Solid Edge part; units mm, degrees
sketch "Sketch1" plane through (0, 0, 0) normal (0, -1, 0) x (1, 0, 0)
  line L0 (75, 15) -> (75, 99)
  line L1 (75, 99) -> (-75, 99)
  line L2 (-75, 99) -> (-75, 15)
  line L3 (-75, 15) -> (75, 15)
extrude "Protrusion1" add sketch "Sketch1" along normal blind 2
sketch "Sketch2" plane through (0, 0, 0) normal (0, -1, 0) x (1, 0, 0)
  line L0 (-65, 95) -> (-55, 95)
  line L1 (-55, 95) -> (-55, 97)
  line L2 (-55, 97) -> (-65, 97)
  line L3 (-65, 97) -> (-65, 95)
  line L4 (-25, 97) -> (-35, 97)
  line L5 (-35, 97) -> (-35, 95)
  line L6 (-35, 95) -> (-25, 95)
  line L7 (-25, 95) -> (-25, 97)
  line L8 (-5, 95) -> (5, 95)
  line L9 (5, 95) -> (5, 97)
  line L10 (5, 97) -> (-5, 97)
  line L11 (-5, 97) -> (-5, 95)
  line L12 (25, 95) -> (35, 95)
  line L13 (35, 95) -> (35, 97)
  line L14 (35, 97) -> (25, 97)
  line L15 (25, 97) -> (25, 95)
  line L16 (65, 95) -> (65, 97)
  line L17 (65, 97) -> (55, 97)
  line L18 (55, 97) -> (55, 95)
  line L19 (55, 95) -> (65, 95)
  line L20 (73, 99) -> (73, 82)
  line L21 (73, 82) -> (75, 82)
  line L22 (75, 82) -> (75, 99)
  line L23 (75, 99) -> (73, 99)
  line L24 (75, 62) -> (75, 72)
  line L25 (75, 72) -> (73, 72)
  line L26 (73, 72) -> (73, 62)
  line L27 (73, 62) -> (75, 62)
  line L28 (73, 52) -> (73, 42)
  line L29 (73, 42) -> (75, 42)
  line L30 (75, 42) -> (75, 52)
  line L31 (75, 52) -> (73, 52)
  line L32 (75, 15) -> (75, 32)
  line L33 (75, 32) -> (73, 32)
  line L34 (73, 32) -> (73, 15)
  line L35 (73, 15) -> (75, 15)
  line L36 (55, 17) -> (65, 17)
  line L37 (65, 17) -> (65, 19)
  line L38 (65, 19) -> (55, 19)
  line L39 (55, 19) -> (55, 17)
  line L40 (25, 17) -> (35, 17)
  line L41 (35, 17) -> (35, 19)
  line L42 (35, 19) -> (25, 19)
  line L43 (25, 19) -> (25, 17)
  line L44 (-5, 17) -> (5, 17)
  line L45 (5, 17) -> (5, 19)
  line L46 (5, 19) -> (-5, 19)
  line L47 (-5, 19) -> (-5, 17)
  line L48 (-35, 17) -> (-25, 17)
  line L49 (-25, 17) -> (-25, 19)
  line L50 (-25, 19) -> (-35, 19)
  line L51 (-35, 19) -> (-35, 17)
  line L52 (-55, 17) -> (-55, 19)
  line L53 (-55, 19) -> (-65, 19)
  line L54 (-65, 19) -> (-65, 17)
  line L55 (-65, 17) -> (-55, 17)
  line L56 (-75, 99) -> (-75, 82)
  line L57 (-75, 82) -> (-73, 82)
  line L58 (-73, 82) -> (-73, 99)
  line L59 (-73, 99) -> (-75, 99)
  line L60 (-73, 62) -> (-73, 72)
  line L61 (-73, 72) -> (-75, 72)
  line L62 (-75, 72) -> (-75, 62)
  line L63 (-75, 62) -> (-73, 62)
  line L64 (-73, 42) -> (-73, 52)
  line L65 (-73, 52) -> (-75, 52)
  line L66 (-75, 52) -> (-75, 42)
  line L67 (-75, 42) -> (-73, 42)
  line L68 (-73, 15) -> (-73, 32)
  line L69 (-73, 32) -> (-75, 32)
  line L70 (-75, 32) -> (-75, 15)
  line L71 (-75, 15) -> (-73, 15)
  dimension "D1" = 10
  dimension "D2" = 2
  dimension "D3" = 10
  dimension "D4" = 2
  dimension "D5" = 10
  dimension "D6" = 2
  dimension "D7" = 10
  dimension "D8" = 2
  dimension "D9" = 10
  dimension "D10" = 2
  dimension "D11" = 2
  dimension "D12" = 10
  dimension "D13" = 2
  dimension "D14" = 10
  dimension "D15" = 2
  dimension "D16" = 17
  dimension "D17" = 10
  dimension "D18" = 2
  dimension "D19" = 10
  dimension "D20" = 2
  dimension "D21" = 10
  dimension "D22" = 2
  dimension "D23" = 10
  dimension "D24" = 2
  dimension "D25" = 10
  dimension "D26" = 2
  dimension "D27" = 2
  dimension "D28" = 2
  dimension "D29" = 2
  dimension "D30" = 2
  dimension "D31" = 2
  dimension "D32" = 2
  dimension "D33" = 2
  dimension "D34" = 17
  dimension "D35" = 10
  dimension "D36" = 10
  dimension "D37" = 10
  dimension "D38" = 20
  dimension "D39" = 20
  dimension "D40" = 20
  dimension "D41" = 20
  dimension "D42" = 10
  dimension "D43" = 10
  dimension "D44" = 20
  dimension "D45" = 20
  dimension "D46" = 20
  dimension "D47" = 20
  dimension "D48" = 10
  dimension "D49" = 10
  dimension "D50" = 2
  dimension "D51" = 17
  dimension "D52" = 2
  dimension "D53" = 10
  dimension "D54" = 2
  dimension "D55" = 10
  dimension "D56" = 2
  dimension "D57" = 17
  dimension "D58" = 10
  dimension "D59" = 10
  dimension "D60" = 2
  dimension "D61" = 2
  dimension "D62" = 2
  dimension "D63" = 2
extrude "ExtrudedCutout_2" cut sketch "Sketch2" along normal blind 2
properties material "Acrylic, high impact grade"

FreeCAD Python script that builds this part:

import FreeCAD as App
import Part
import Sketcher
from FreeCAD import Vector
Q = App.Units.Quantity

doc = App.newDocument("Part")
body = doc.addObject("PartDesign::Body", "Body")

sketch1 = body.newObject("Sketcher::SketchObject", "Sketch")
sketch1.AttachmentSupport = (doc.getObject("XZ_Plane"), [""])
sketch1.MapMode = "FlatFace"
sketch1.addGeometry([
    Part.LineSegment(Vector(-75, 15, 0), Vector(75, 15, 0)),
    Part.LineSegment(Vector(75, 15, 0), Vector(75, 99, 0)),
    Part.LineSegment(Vector(75, 99, 0), Vector(-75, 99, 0)),
    Part.LineSegment(Vector(-75, 99, 0), Vector(-75, 15, 0)),
], False)
sketch1.addConstraint([
    Sketcher.Constraint("Coincident", 0, 2, 1, 1),
    Sketcher.Constraint("Coincident", 1, 2, 2, 1),
    Sketcher.Constraint("Coincident", 2, 2, 3, 1),
    Sketcher.Constraint("Coincident", 3, 2, 0, 1),
    Sketcher.Constraint("Horizontal", 0),
    Sketcher.Constraint("Vertical", 1),
    Sketcher.Constraint("Horizontal", 2),
    Sketcher.Constraint("Vertical", 3),
    Sketcher.Constraint("DistanceX", 0, 1, 0, 2, Q("150 mm")),
    Sketcher.Constraint("DistanceY", 1, 1, 1, 2, Q("84 mm")),
    Sketcher.Constraint("DistanceX", -1, 1, 0, 2, Q("75 mm")),
    Sketcher.Constraint("DistanceY", -1, 1, 0, 2, Q("15 mm")),
])
pad1 = body.newObject("PartDesign::Pad", "Pad")
pad1.Profile = sketch1
pad1.Length = 2

sketch2 = body.newObject("Sketcher::SketchObject", "Sketch001")
sketch2.AttachmentSupport = (doc.getObject("XZ_Plane"), [""])
sketch2.MapMode = "FlatFace"
sketch2.addGeometry([
    Part.LineSegment(Vector(-65, 97, 0), Vector(-65, 95, 0)),
    Part.LineSegment(Vector(-65, 95, 0), Vector(-55, 95, 0)),
    Part.LineSegment(Vector(-55, 95, 0), Vector(-55, 97, 0)),
    Part.LineSegment(Vector(-55, 97, 0), Vector(-65, 97, 0)),
    Part.LineSegment(Vector(-25, 95, 0), Vector(-25, 97, 0)),
    Part.LineSegment(Vector(-25, 97, 0), Vector(-35, 97, 0)),
    Part.LineSegment(Vector(-35, 97, 0), Vector(-35, 95, 0)),
    Part.LineSegment(Vector(-35, 95, 0), Vector(-25, 95, 0)),
    Part.LineSegment(Vector(-5, 97, 0), Vector(-5, 95, 0)),
    Part.LineSegment(Vector(-5, 95, 0), Vector(5, 95, 0)),
    Part.LineSegment(Vector(5, 95, 0), Vector(5, 97, 0)),
    Part.LineSegment(Vector(5, 97, 0), Vector(-5, 97, 0)),
    Part.LineSegment(Vector(25, 97, 0), Vector(25, 95, 0)),
    Part.LineSegment(Vector(25, 95, 0), Vector(35, 95, 0)),
    Part.LineSegment(Vector(35, 95, 0), Vector(35, 97, 0)),
    Part.LineSegment(Vector(35, 97, 0), Vector(25, 97, 0)),
    Part.LineSegment(Vector(55, 95, 0), Vector(65, 95, 0)),
    Part.LineSegment(Vector(65, 95, 0), Vector(65, 97, 0)),
    Part.LineSegment(Vector(65, 97, 0), Vector(55, 97, 0)),
    Part.LineSegment(Vector(55, 97, 0), Vector(55, 95, 0)),
    Part.LineSegment(Vector(75, 99, 0), Vector(73, 99, 0)),
    Part.LineSegment(Vector(73, 99, 0), Vector(73, 82, 0)),
    Part.LineSegment(Vector(73, 82, 0), Vector(75, 82, 0)),
    Part.LineSegment(Vector(75, 82, 0), Vector(75, 99, 0)),
    Part.LineSegment(Vector(73, 62, 0), Vector(75, 62, 0)),
    Part.LineSegment(Vector(75, 62, 0), Vector(75, 72, 0)),
    Part.LineSegment(Vector(75, 72, 0), Vector(73, 72, 0)),
    Part.LineSegment(Vector(73, 72, 0), Vector(73, 62, 0)),
    Part.LineSegment(Vector(75, 52, 0), Vector(73, 52, 0)),
    Part.LineSegment(Vector(73, 52, 0), Vector(73, 42, 0)),
    Part.LineSegment(Vector(73, 42, 0), Vector(75, 42, 0)),
    Part.LineSegment(Vector(75, 42, 0), Vector(75, 52, 0)),
    Part.LineSegment(Vector(73, 15, 0), Vector(75, 15, 0)),
    Part.LineSegment(Vector(75, 15, 0), Vector(75, 32, 0)),
    Part.LineSegment(Vector(75, 32, 0), Vector(73, 32, 0)),
    Part.LineSegment(Vector(73, 32, 0), Vector(73, 15, 0)),
    Part.LineSegment(Vector(55, 19, 0), Vector(55, 17, 0)),
    Part.LineSegment(Vector(55, 17, 0), Vector(65, 17, 0)),
    Part.LineSegment(Vector(65, 17, 0), Vector(65, 19, 0)),
    Part.LineSegment(Vector(65, 19, 0), Vector(55, 19, 0)),
    Part.LineSegment(Vector(25, 19, 0), Vector(25, 17, 0)),
    Part.LineSegment(Vector(25, 17, 0), Vector(35, 17, 0)),
    Part.LineSegment(Vector(35, 17, 0), Vector(35, 19, 0)),
    Part.LineSegment(Vector(35, 19, 0), Vector(25, 19, 0)),
    Part.LineSegment(Vector(-5, 19, 0), Vector(-5, 17, 0)),
    Part.LineSegment(Vector(-5, 17, 0), Vector(5, 17, 0)),
    Part.LineSegment(Vector(5, 17, 0), Vector(5, 19, 0)),
    Part.LineSegment(Vector(5, 19, 0), Vector(-5, 19, 0)),
    Part.LineSegment(Vector(-35, 19, 0), Vector(-35, 17, 0)),
    Part.LineSegment(Vector(-35, 17, 0), Vector(-25, 17, 0)),
    Part.LineSegment(Vector(-25, 17, 0), Vector(-25, 19, 0)),
    Part.LineSegment(Vector(-25, 19, 0), Vector(-35, 19, 0)),
    Part.LineSegment(Vector(-65, 17, 0), Vector(-55, 17, 0)),
    Part.LineSegment(Vector(-55, 17, 0), Vector(-55, 19, 0)),
    Part.LineSegment(Vector(-55, 19, 0), Vector(-65, 19, 0)),
    Part.LineSegment(Vector(-65, 19, 0), Vector(-65, 17, 0)),
    Part.LineSegment(Vector(-73, 99, 0), Vector(-75, 99, 0)),
    Part.LineSegment(Vector(-75, 99, 0), Vector(-75, 82, 0)),
    Part.LineSegment(Vector(-75, 82, 0), Vector(-73, 82, 0)),
    Part.LineSegment(Vector(-73, 82, 0), Vector(-73, 99, 0)),
    Part.LineSegment(Vector(-75, 62, 0), Vector(-73, 62, 0)),
    Part.LineSegment(Vector(-73, 62, 0), Vector(-73, 72, 0)),
    Part.LineSegment(Vector(-73, 72, 0), Vector(-75, 72, 0)),
    Part.LineSegment(Vector(-75, 72, 0), Vector(-75, 62, 0)),
    Part.LineSegment(Vector(-75, 42, 0), Vector(-73, 42, 0)),
    Part.LineSegment(Vector(-73, 42, 0), Vector(-73, 52, 0)),
    Part.LineSegment(Vector(-73, 52, 0), Vector(-75, 52, 0)),
    Part.LineSegment(Vector(-75, 52, 0), Vector(-75, 42, 0)),
    Part.LineSegment(Vector(-75, 15, 0), Vector(-73, 15, 0)),
    Part.LineSegment(Vector(-73, 15, 0), Vector(-73, 32, 0)),
    Part.LineSegment(Vector(-73, 32, 0), Vector(-75, 32, 0)),
    Part.LineSegment(Vector(-75, 32, 0), Vector(-75, 15, 0)),
], False)
sketch2.addConstraint([
    Sketcher.Constraint("Coincident", 0, 2, 1, 1),
    Sketcher.Constraint("Coincident", 1, 2, 2, 1),
    Sketcher.Constraint("Coincident", 2, 2, 3, 1),
    Sketcher.Constraint("Coincident", 3, 2, 0, 1),
    Sketcher.Constraint("Coincident", 4, 2, 5, 1),
    Sketcher.Constraint("Coincident", 5, 2, 6, 1),
    Sketcher.Constraint("Coincident", 6, 2, 7, 1),
    Sketcher.Constraint("Coincident", 7, 2, 4, 1),
    Sketcher.Constraint("Coincident", 8, 2, 9, 1),
    Sketcher.Constraint("Coincident", 9, 2, 10, 1),
    Sketcher.Constraint("Coincident", 10, 2, 11, 1),
    Sketcher.Constraint("Coincident", 11, 2, 8, 1),
    Sketcher.Constraint("Coincident", 12, 2, 13, 1),
    Sketcher.Constraint("Coincident", 13, 2, 14, 1),
    Sketcher.Constraint("Coincident", 14, 2, 15, 1),
    Sketcher.Constraint("Coincident", 15, 2, 12, 1),
    Sketcher.Constraint("Coincident", 16, 2, 17, 1),
    Sketcher.Constraint("Coincident", 17, 2, 18, 1),
    Sketcher.Constraint("Coincident", 18, 2, 19, 1),
    Sketcher.Constraint("Coincident", 19, 2, 16, 1),
    Sketcher.Constraint("Coincident", 20, 2, 21, 1),
    Sketcher.Constraint("Coincident", 21, 2, 22, 1),
    Sketcher.Constraint("Coincident", 22, 2, 23, 1),
    Sketcher.Constraint("Coincident", 23, 2, 20, 1),
    Sketcher.Constraint("Coincident", 24, 2, 25, 1),
    Sketcher.Constraint("Coincident", 25, 2, 26, 1),
    Sketcher.Constraint("Coincident", 26, 2, 27, 1),
    Sketcher.Constraint("Coincident", 27, 2, 24, 1),
    Sketcher.Constraint("Coincident", 28, 2, 29, 1),
    Sketcher.Constraint("Coincident", 29, 2, 30, 1),
    Sketcher.Constraint("Coincident", 30, 2, 31, 1),
    Sketcher.Constraint("Coincident", 31, 2, 28, 1),
    Sketcher.Constraint("Coincident", 32, 2, 33, 1),
    Sketcher.Constraint("Coincident", 33, 2, 34, 1),
    Sketcher.Constraint("Coincident", 34, 2, 35, 1),
    Sketcher.Constraint("Coincident", 35, 2, 32, 1),
    Sketcher.Constraint("Coincident", 36, 2, 37, 1),
    Sketcher.Constraint("Coincident", 37, 2, 38, 1),
    Sketcher.Constraint("Coincident", 38, 2, 39, 1),
    Sketcher.Constraint("Coincident", 39, 2, 36, 1),
    Sketcher.Constraint("Coincident", 40, 2, 41, 1),
    Sketcher.Constraint("Coincident", 41, 2, 42, 1),
    Sketcher.Constraint("Coincident", 42, 2, 43, 1),
    Sketcher.Constraint("Coincident", 43, 2, 40, 1),
    Sketcher.Constraint("Coincident", 44, 2, 45, 1),
    Sketcher.Constraint("Coincident", 45, 2, 46, 1),
    Sketcher.Constraint("Coincident", 46, 2, 47, 1),
    Sketcher.Constraint("Coincident", 47, 2, 44, 1),
    Sketcher.Constraint("Coincident", 48, 2, 49, 1),
    Sketcher.Constraint("Coincident", 49, 2, 50, 1),
    Sketcher.Constraint("Coincident", 50, 2, 51, 1),
    Sketcher.Constraint("Coincident", 51, 2, 48, 1),
    Sketcher.Constraint("Coincident", 52, 2, 53, 1),
    Sketcher.Constraint("Coincident", 53, 2, 54, 1),
    Sketcher.Constraint("Coincident", 54, 2, 55, 1),
    Sketcher.Constraint("Coincident", 55, 2, 52, 1),
    Sketcher.Constraint("Coincident", 56, 2, 57, 1),
    Sketcher.Constraint("Coincident", 57, 2, 58, 1),
    Sketcher.Constraint("Coincident", 58, 2, 59, 1),
    Sketcher.Constraint("Coincident", 59, 2, 56, 1),
    Sketcher.Constraint("Coincident", 60, 2, 61, 1),
    Sketcher.Constraint("Coincident", 61, 2, 62, 1),
    Sketcher.Constraint("Coincident", 62, 2, 63, 1),
    Sketcher.Constraint("Coincident", 63, 2, 60, 1),
    Sketcher.Constraint("Coincident", 64, 2, 65, 1),
    Sketcher.Constraint("Coincident", 65, 2, 66, 1),
    Sketcher.Constraint("Coincident", 66, 2, 67, 1),
    Sketcher.Constraint("Coincident", 67, 2, 64, 1),
    Sketcher.Constraint("Coincident", 68, 2, 69, 1),
    Sketcher.Constraint("Coincident", 69, 2, 70, 1),
    Sketcher.Constraint("Coincident", 70, 2, 71, 1),
    Sketcher.Constraint("Coincident", 71, 2, 68, 1),
    Sketcher.Constraint("Vertical", 0),
    Sketcher.Constraint("Horizontal", 1),
    Sketcher.Constraint("Vertical", 2),
    Sketcher.Constraint("Horizontal", 3),
    Sketcher.Constraint("Vertical", 4),
    Sketcher.Constraint("Horizontal", 5),
    Sketcher.Constraint("Vertical", 6),
    Sketcher.Constraint("Horizontal", 7),
    Sketcher.Constraint("Vertical", 8),
    Sketcher.Constraint("Horizontal", 9),
    Sketcher.Constraint("Vertical", 10),
    Sketcher.Constraint("Horizontal", 11),
    Sketcher.Constraint("Vertical", 12),
    Sketcher.Constraint("Horizontal", 13),
    Sketcher.Constraint("Vertical", 14),
    Sketcher.Constraint("Horizontal", 15),
    Sketcher.Constraint("Horizontal", 16),
    Sketcher.Constraint("Vertical", 17),
    Sketcher.Constraint("Horizontal", 18),
    Sketcher.Constraint("Vertical", 19),
    Sketcher.Constraint("Horizontal", 20),
    Sketcher.Constraint("Vertical", 21),
    Sketcher.Constraint("Horizontal", 22),
    Sketcher.Constraint("Vertical", 23),
    Sketcher.Constraint("Horizontal", 24),
    Sketcher.Constraint("Vertical", 25),
    Sketcher.Constraint("Horizontal", 26),
    Sketcher.Constraint("Vertical", 27),
    Sketcher.Constraint("Horizontal", 28),
    Sketcher.Constraint("Vertical", 29),
    Sketcher.Constraint("Horizontal", 30),
    Sketcher.Constraint("Vertical", 31),
    Sketcher.Constraint("Horizontal", 32),
    Sketcher.Constraint("Vertical", 33),
    Sketcher.Constraint("Horizontal", 34),
    Sketcher.Constraint("Vertical", 35),
    Sketcher.Constraint("Vertical", 36),
    Sketcher.Constraint("Horizontal", 37),
    Sketcher.Constraint("Vertical", 38),
    Sketcher.Constraint("Horizontal", 39),
    Sketcher.Constraint("Vertical", 40),
    Sketcher.Constraint("Horizontal", 41),
    Sketcher.Constraint("Vertical", 42),
    Sketcher.Constraint("Horizontal", 43),
    Sketcher.Constraint("Vertical", 44),
    Sketcher.Constraint("Horizontal", 45),
    Sketcher.Constraint("Vertical", 46),
    Sketcher.Constraint("Horizontal", 47),
    Sketcher.Constraint("Vertical", 48),
    Sketcher.Constraint("Horizontal", 49),
    Sketcher.Constraint("Vertical", 50),
    Sketcher.Constraint("Horizontal", 51),
    Sketcher.Constraint("Horizontal", 52),
    Sketcher.Constraint("Vertical", 53),
    Sketcher.Constraint("Horizontal", 54),
    Sketcher.Constraint("Vertical", 55),
    Sketcher.Constraint("Horizontal", 56),
    Sketcher.Constraint("Vertical", 57),
    Sketcher.Constraint("Horizontal", 58),
    Sketcher.Constraint("Vertical", 59),
    Sketcher.Constraint("Horizontal", 60),
    Sketcher.Constraint("Vertical", 61),
    Sketcher.Constraint("Horizontal", 62),
    Sketcher.Constraint("Vertical", 63),
    Sketcher.Constraint("Horizontal", 64),
    Sketcher.Constraint("Vertical", 65),
    Sketcher.Constraint("Horizontal", 66),
    Sketcher.Constraint("Vertical", 67),
    Sketcher.Constraint("Horizontal", 68),
    Sketcher.Constraint("Vertical", 69),
    Sketcher.Constraint("Horizontal", 70),
    Sketcher.Constraint("Vertical", 71),
    Sketcher.Constraint("Symmetric", 7, 2, 12, 2, -2),
    Sketcher.Constraint("Symmetric", 5, 2, 14, 2, -2),
    Sketcher.Constraint("Symmetric", 0, 2, 16, 2, -2),
    Sketcher.Constraint("Symmetric", 2, 2, 18, 2, -2),
    Sketcher.Constraint("Symmetric", 41, 2, 48, 2, -2),
    Sketcher.Constraint("Symmetric", 43, 2, 50, 2, -2),
    Sketcher.Constraint("Symmetric", 36, 2, 52, 2, -2),
    Sketcher.Constraint("Symmetric", 38, 2, 54, 2, -2),
    Sketcher.Constraint("Symmetric", 23, 2, 56, 2, -2),
    Sketcher.Constraint("Symmetric", 21, 2, 58, 2, -2),
    Sketcher.Constraint("Symmetric", 27, 2, 60, 2, -2),
    Sketcher.Constraint("Symmetric", 25, 2, 62, 2, -2),
    Sketcher.Constraint("Symmetric", 29, 2, 64, 2, -2),
    Sketcher.Constraint("Symmetric", 31, 2, 66, 2, -2),
    Sketcher.Constraint("Symmetric", 35, 2, 68, 2, -2),
    Sketcher.Constraint("Symmetric", 33, 2, 70, 2, -2),
    Sketcher.Constraint("Horizontal", 3, 2, 4, 2),
    Sketcher.Constraint("Horizontal", 1, 2, 6, 2),
    Sketcher.Constraint("Horizontal", 7, 2, 8, 2),
    Sketcher.Constraint("Horizontal", 5, 2, 10, 2),
    Sketcher.Constraint("Horizontal", 37, 2, 40, 2),
    Sketcher.Constraint("Horizontal", 39, 2, 42, 2),
    Sketcher.Constraint("Horizontal", 41, 2, 44, 2),
    Sketcher.Constraint("Horizontal", 43, 2, 46, 2),
    Sketcher.Constraint("Vertical", 23, 2, 24, 2),
    Sketcher.Constraint("Vertical", 21, 2, 26, 2),
    Sketcher.Constraint("Vertical", 27, 2, 28, 2),
    Sketcher.Constraint("Vertical", 25, 2, 30, 2),
    Sketcher.Constraint("Vertical", 31, 2, 32, 2),
    Sketcher.Constraint("Vertical", 29, 2, 34, 2),
    Sketcher.Constraint("Vertical", 19, 2, 36, 2),
    Sketcher.Constraint("Vertical", 17, 2, 37, 2),
    Sketcher.Constraint("Vertical", 15, 2, 40, 2),
    Sketcher.Constraint("Vertical", 14, 2, 41, 2),
    Sketcher.Constraint("Vertical", 11, 2, 44, 2),
    Sketcher.Constraint("Vertical", 10, 2, 45, 2),
    Sketcher.Constraint("Equal", 3, 5),
    Sketcher.Constraint("Equal", 7, 9),
    Sketcher.Constraint("Equal", 70, 0),
    Sketcher.Constraint("Equal", 54, 25),
    Sketcher.Constraint("Equal", 27, 29),
    Sketcher.Constraint("Equal", 23, 33),
    Sketcher.Constraint("Equal", 19, 36),
    Sketcher.Constraint("DistanceX", 1, 1, 1, 2, Q("10 mm")),
    Sketcher.Constraint("DistanceX", 20, 2, 20, 1, Q("2 mm")),
    Sketcher.Constraint("DistanceY", 21, 2, 21, 1, Q("17 mm")),
    Sketcher.Constraint("DistanceX", 0, 2, -1, 1, Q("65 mm")),
    Sketcher.Constraint("DistanceY", -1, 1, 0, 2, Q("95 mm")),
    Sketcher.Constraint("DistanceX", 4, 2, -1, 1, Q("25 mm")),
    Sketcher.Constraint("DistanceX", 8, 2, -1, 1, Q("5 mm")),
    Sketcher.Constraint("DistanceX", -1, 1, 20, 2, Q("73 mm")),
    Sketcher.Constraint("DistanceY", -1, 1, 20, 2, Q("99 mm")),
    Sketcher.Constraint("DistanceY", -1, 1, 24, 2, Q("62 mm")),
    Sketcher.Constraint("DistanceY", -1, 1, 28, 2, Q("52 mm")),
    Sketcher.Constraint("DistanceY", -1, 1, 32, 2, Q("15 mm")),
    Sketcher.Constraint("DistanceY", -1, 1, 36, 2, Q("17 mm")),
])
pocket1 = body.newObject("PartDesign::Pocket", "Pocket")
pocket1.Profile = sketch2
pocket1.Length = 2
pocket1.Reversed = True

doc.recompute()
